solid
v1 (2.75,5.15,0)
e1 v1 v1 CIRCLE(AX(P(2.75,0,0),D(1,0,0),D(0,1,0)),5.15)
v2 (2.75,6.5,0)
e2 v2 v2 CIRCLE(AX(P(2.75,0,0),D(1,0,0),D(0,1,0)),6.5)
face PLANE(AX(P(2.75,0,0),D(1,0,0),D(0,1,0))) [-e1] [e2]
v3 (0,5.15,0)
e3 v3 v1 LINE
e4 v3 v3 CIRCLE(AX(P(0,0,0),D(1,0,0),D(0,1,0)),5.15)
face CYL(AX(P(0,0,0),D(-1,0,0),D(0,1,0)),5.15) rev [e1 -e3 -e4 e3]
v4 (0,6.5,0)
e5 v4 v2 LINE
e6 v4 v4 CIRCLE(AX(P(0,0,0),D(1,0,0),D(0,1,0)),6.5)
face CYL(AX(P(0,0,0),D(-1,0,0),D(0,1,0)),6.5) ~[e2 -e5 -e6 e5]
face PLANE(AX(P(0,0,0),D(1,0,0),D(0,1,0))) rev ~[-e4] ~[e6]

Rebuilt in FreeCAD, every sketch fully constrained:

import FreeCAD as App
import Part
import Sketcher
from FreeCAD import Vector
Q = App.Units.Quantity

doc = App.newDocument("Part")
body = doc.addObject("PartDesign::Body", "Body")

# Sketch on YZ plane
sketch1 = doc.addObject("Sketcher::SketchObject", "Sketch")
body.addObject(sketch1)
sketch1.AttachmentSupport = (doc.YZ_Plane, [""])
sketch1.MapMode = "FlatFace"
sketch1.addGeometry(Part.Circle(Vector(0, 0, 0), Vector(0, 0, 1), 6), False)
sketch1.addGeometry(Part.Circle(Vector(0, 0, 0), Vector(0, 0, 1), 5), False)
sketch1.addConstraint(Sketcher.Constraint("Coincident", 0, 3, -1, 1))
sketch1.addConstraint(Sketcher.Constraint("Coincident", 1, 3, -1, 1))
sketch1.addConstraint(Sketcher.Constraint("Diameter", 0, Q("13 mm")))
sketch1.addConstraint(Sketcher.Constraint("Diameter", 1, Q("10.3 mm")))
pad1 = doc.addObject("PartDesign::Pad", "Pad")
body.addObject(pad1)
pad1.Profile = sketch1
pad1.Length = 2.75

doc.recompute()
